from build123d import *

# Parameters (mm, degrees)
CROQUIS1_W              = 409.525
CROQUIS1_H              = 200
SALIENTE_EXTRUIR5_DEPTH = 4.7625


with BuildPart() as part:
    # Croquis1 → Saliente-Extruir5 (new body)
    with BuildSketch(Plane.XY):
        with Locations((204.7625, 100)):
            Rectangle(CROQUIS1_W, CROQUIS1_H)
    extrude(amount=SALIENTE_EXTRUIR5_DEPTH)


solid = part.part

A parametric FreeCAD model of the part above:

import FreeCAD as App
import Part
import Sketcher

V = App.Vector
Q = App.Units.Quantity

doc = App.newDocument("Part")
body = doc.addObject("PartDesign::Body", "Body")

sketch1 = doc.addObject("Sketcher::SketchObject", "Sketch")
body.addObject(sketch1)
sketch1.AttachmentSupport = (doc.XY_Plane, [""])
sketch1.MapMode = "FlatFace"
sketch1.addGeometry([
    Part.LineSegment(V(0, 200, 0), V(0, 0, 0)),
    Part.LineSegment(V(0, 0, 0), V(409.525, 0, 0)),
    Part.LineSegment(V(409.525, 0, 0), V(409.525, 200, 0)),
    Part.LineSegment(V(409.525, 200, 0), V(0, 200, 0)),
], False)
sketch1.addConstraint([
    Sketcher.Constraint("Coincident", 0, 2, 1, 1),
    Sketcher.Constraint("Coincident", 1, 2, 2, 1),
    Sketcher.Constraint("Coincident", 2, 2, 3, 1),
    Sketcher.Constraint("Coincident", 3, 2, 0, 1),
    Sketcher.Constraint("Vertical", 0),
    Sketcher.Constraint("Horizontal", 1),
    Sketcher.Constraint("Vertical", 2),
    Sketcher.Constraint("Horizontal", 3),
    Sketcher.Constraint("Coincident", 0, 2, -1, 1),
    Sketcher.Constraint("DistanceY", 0, 2, 0, 1, Q("200 mm")),
    Sketcher.Constraint("DistanceX", 1, 1, 1, 2, Q("409.525 mm")),
])
pad1 = doc.addObject("PartDesign::Pad", "Pad")
body.addObject(pad1)
pad1.Profile = sketch1
pad1.Length = 4.7625

doc.recompute()
